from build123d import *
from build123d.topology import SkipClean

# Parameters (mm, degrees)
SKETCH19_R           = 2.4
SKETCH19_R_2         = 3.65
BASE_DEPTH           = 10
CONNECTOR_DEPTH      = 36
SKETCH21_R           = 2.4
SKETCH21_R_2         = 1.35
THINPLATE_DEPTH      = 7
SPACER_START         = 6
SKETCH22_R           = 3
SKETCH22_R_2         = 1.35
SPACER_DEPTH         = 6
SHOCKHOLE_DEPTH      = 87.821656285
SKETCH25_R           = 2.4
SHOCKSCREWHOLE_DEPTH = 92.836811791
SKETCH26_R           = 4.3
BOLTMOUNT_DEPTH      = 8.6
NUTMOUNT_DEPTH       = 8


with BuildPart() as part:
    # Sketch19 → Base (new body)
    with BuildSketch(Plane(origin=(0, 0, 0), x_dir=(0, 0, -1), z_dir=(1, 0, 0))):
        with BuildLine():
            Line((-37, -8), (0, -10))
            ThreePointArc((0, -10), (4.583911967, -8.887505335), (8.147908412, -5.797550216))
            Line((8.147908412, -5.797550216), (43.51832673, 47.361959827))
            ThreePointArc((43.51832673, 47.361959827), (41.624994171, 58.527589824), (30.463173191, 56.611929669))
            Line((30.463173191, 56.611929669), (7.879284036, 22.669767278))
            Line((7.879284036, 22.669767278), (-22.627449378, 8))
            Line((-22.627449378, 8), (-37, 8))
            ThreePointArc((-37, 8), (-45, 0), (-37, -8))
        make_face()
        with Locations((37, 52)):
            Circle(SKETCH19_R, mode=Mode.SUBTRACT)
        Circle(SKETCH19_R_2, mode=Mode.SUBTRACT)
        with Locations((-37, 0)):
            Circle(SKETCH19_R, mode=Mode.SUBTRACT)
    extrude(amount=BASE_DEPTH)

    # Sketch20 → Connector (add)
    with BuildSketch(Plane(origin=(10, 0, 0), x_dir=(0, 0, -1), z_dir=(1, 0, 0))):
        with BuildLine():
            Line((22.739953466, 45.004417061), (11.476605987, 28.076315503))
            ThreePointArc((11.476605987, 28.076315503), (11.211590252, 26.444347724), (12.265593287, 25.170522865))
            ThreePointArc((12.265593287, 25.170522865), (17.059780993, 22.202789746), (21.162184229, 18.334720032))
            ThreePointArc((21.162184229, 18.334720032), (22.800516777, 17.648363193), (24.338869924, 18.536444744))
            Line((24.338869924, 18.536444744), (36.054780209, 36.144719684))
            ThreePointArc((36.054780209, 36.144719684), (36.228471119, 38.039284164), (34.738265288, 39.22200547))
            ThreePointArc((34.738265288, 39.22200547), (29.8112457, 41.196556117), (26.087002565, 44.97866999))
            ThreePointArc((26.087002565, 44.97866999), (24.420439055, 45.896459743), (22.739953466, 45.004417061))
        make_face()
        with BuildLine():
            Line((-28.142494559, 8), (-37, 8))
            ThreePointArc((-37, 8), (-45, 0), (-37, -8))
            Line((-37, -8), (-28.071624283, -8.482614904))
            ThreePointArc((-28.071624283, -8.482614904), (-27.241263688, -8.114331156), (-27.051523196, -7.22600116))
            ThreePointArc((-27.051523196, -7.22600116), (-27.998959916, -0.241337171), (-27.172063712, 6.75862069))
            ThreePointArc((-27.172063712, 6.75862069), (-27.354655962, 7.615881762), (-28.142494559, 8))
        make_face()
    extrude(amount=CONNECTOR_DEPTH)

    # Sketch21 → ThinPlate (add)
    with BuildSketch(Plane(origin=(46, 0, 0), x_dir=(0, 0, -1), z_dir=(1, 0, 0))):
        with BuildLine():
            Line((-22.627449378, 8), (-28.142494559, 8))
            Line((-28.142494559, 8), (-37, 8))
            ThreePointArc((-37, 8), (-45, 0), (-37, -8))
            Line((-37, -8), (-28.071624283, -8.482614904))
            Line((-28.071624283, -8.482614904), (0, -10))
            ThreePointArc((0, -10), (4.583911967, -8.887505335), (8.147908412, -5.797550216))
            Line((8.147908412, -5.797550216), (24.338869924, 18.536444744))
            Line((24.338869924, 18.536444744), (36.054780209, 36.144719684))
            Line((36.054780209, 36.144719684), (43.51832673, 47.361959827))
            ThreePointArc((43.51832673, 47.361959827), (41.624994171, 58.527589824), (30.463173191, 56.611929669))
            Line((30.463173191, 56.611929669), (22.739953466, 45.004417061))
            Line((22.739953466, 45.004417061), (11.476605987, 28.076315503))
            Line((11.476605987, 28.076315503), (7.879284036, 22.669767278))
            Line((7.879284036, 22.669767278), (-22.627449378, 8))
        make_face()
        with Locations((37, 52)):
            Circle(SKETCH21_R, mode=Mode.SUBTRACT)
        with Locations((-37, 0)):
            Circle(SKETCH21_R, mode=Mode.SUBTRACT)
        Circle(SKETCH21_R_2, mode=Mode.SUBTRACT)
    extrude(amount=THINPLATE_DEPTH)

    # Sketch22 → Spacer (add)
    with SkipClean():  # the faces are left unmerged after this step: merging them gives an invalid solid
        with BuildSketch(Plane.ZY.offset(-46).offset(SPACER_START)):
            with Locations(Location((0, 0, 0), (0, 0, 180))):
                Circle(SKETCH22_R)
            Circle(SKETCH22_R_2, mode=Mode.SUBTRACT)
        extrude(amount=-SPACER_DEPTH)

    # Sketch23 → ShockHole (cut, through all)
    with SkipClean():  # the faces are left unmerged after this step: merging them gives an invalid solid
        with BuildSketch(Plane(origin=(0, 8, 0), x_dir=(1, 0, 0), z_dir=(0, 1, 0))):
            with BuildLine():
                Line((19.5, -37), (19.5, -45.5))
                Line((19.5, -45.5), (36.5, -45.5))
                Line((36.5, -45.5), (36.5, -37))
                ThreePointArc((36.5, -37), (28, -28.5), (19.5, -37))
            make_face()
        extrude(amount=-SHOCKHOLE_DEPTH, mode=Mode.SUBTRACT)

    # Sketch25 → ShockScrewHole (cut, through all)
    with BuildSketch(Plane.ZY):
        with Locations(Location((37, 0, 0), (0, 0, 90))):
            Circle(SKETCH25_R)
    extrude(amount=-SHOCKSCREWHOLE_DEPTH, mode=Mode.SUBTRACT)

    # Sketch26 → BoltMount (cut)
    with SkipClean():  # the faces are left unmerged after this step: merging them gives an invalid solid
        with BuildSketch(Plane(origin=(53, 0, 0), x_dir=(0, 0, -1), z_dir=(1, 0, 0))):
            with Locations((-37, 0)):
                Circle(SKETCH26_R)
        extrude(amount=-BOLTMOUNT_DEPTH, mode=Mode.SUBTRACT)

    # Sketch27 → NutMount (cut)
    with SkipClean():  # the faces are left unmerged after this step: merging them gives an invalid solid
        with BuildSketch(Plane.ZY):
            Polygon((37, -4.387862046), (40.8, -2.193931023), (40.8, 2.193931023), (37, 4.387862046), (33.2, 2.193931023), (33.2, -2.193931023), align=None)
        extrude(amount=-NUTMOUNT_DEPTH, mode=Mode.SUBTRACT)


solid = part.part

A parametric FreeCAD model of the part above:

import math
import FreeCAD as App
import Part
import Sketcher
from FreeCAD import Vector
Q = App.Units.Quantity

doc = App.newDocument("Part")
body = doc.addObject("PartDesign::Body", "Body")

# Sketch on YZ plane
sketch1 = doc.addObject("Sketcher::SketchObject", "Sketch")
body.addObject(sketch1)
sketch1.AttachmentSupport = (doc.YZ_Plane, [""])
sketch1.MapMode = "FlatFace"
sketch1.addGeometry([
    Part.LineSegment(Vector(-8, 37, 0), Vector(-10, 0, 0)),  # 0
    Part.ArcOfCircle(Part.Circle(Vector(0, 0, 0), Vector(0, 0, 1), 10), math.radians(180), math.radians(234.566686)),  # 1
    Part.LineSegment(Vector(-5.79755, -8.147908, 0), Vector(47.36196, -43.518327, 0)),  # 2
    Part.ArcOfCircle(Part.Circle(Vector(52, -37, 0), Vector(0, 0, 1), 8), math.radians(-125.433314), math.radians(54.795871)),  # 3
    Part.LineSegment(Vector(56.61193, -30.463173, 0), Vector(22.669767, -7.879284, 0)),  # 4
    Part.LineSegment(Vector(22.669767, -7.879284, 0), Vector(8, 22.627449, 0)),  # 5
    Part.LineSegment(Vector(8, 22.627449, 0), Vector(8, 37, 0)),  # 6
    Part.ArcOfCircle(Part.Circle(Vector(0, 37, 0), Vector(0, 0, 1), 8), math.radians(0), math.radians(180)),  # 7
    Part.Circle(Vector(0, 37, 0), Vector(0, 0, 1), 2.4),  # 8
    Part.Circle(Vector(0, 0, 0), Vector(0, 0, 1), 3.65),  # 9
    Part.Circle(Vector(52, -37, 0), Vector(0, 0, 1), 2.4),  # 10
], False)
sketch1.addConstraint([
    Sketcher.Constraint("Coincident", 0, 2, 1, 1),
    Sketcher.Constraint("Coincident", 1, 2, 2, 1),
    Sketcher.Constraint("Coincident", 2, 2, 3, 1),
    Sketcher.Constraint("Coincident", 3, 2, 4, 1),
    Sketcher.Constraint("Coincident", 4, 2, 5, 1),
    Sketcher.Constraint("Coincident", 5, 2, 6, 1),
    Sketcher.Constraint("Tangent", 6, 2, 7, 1),
    Sketcher.Constraint("Coincident", 7, 2, 0, 1),
    Sketcher.Constraint("Vertical", 6),
    Sketcher.Constraint("Coincident", 1, 3, -1, 1),
    Sketcher.Constraint("Coincident", 9, 3, -1, 1),
    Sketcher.Constraint("Coincident", 8, 3, 7, 3),
    Sketcher.Constraint("Coincident", 10, 3, 3, 3),
    Sketcher.Constraint("Equal", 3, 7),
    Sketcher.Constraint("Equal", 8, 10),
    Sketcher.Constraint("Symmetric", 6, 2, 7, 2, -2),
    Sketcher.Constraint("PointOnObject", 0, 2, -1),
    Sketcher.Constraint("Parallel", 2, 4),
    Sketcher.Constraint("Radius", 1, 10.0),
    Sketcher.Constraint("Radius", 3, 8.0),
    Sketcher.Constraint("Diameter", 8, 4.8),
    Sketcher.Constraint("Diameter", 9, 7.3),
    Sketcher.Constraint("DistanceX", -1, 1, 3, 3, 52.0),
    Sketcher.Constraint("DistanceY", 3, 3, -1, 1, 37.0),
    Sketcher.Constraint("DistanceY", -1, 1, 7, 3, 37.0),
    Sketcher.Constraint("DistanceY", 6, 1, 6, 2, 14.372551),
    Sketcher.Constraint("Distance", 2, 63.85139),
    Sketcher.Constraint("Distance", 4, 40.768891),
    Sketcher.Constraint("DistanceX", 1, 2, -1, 1, 5.79755),
    Sketcher.Constraint("DistanceX", -1, 1, 3, 2, 56.61193),
])
pad1 = doc.addObject("PartDesign::Pad", "Pad")
body.addObject(pad1)
pad1.Profile = sketch1
pad1.Length = 10

# Sketch on YZ plane
sketch2 = doc.addObject("Sketcher::SketchObject", "Sketch001")
body.addObject(sketch2)
sketch2.AttachmentSupport = (doc.YZ_Plane, [""])
sketch2.MapMode = "FlatFace"
sketch2.AttachmentOffset = App.Placement(Vector(0, 0, 10), App.Rotation())
sketch2.addGeometry([
    Part.LineSegment(Vector(45.004417, -22.739953, 0), Vector(28.076316, -11.476606, 0)),  # 0
    Part.ArcOfCircle(Part.Circle(Vector(26.968417, -13.141707, 0), Vector(0, 0, 1), 2), math.radians(56.36164), math.radians(154.02003)),  # 1
    Part.ArcOfCircle(Part.Circle(Vector(0, 0, 0), Vector(0, 0, 1), 28), math.radians(-49.094647), math.radians(-25.979969)),  # 2
    Part.ArcOfCircle(Part.Circle(Vector(19.644343, -22.673769, 0), Vector(0, 0, 1), 2), math.radians(130.905353), math.radians(236.36164)),  # 3
    Part.LineSegment(Vector(18.536445, -24.33887, 0), Vector(36.14472, -36.05478, 0)),  # 4
    Part.ArcOfCircle(Part.Circle(Vector(37.252618, -34.389679, 0), Vector(0, 0, 1), 2), math.radians(-123.63836), math.radians(-10.037523)),  # 5
    Part.ArcOfCircle(Part.Circle(Vector(52, -37, 0), Vector(0, 0, 1), 12.976617), math.radians(122.756885), math.radians(169.962477)),  # 6
    Part.ArcOfCircle(Part.Circle(Vector(43.896519, -24.405055, 0), Vector(0, 0, 1), 2), math.radians(-57.243115), math.radians(56.36164)),  # 7
    Part.LineSegment(Vector(8, 28.142495, 0), Vector(8, 37, 0)),  # 8
    Part.ArcOfCircle(Part.Circle(Vector(0, 37, 0), Vector(0, 0, 1), 8), math.radians(0), math.radians(180)),  # 9
    Part.LineSegment(Vector(-8, 37, 0), Vector(-8.482615, 28.071624, 0)),  # 10
    Part.ArcOfCircle(Part.Circle(Vector(-7.484073, 28.017649, 0), Vector(0, 0, 1), 1), math.radians(176.905942), math.radians(284.955661)),  # 11
    Part.ArcOfCircle(Part.Circle(Vector(0, 0, 0), Vector(0, 0, 1), 28), math.radians(76.032037), math.radians(104.955661)),  # 12
    Part.ArcOfCircle(Part.Circle(Vector(7, 28.142495, 0), Vector(0, 0, 1), 1), math.radians(-103.967963), math.radians(0)),  # 13
], False)
sketch2.addConstraint([
    Sketcher.Constraint("Tangent", 0, 2, 1, 1),
    Sketcher.Constraint("Tangent", 1, 2, 2, 2),
    Sketcher.Constraint("Tangent", 2, 1, 3, 1),
    Sketcher.Constraint("Tangent", 3, 2, 4, 1),
    Sketcher.Constraint("Tangent", 4, 2, 5, 1),
    Sketcher.Constraint("Tangent", 5, 2, 6, 2),
    Sketcher.Constraint("Tangent", 6, 1, 7, 1),
    Sketcher.Constraint("Tangent", 7, 2, 0, 1),
    Sketcher.Constraint("Tangent", 8, 2, 9, 1),
    Sketcher.Constraint("Coincident", 9, 2, 10, 1),
    Sketcher.Constraint("Tangent", 10, 2, 11, 1),
    Sketcher.Constraint("Tangent", 11, 2, 12, 2),
    Sketcher.Constraint("Tangent", 12, 1, 13, 1),
    Sketcher.Constraint("Tangent", 13, 2, 8, 1),
    Sketcher.Constraint("Vertical", 8),
    Sketcher.Constraint("Coincident", 2, 3, -1, 1),
    Sketcher.Constraint("Coincident", 12, 3, -1, 1),
    Sketcher.Constraint("Equal", 1, 3),
    Sketcher.Constraint("Equal", 3, 5),
    Sketcher.Constraint("Equal", 5, 7),
    Sketcher.Constraint("Equal", 2, 12),
    Sketcher.Constraint("Equal", 11, 13),
    Sketcher.Constraint("Symmetric", 8, 2, 9, 2, -2),
    Sketcher.Constraint("Parallel", 0, 4),
    Sketcher.Constraint("Radius", 1, 2.0),
    Sketcher.Constraint("Radius", 2, 28.0),
    Sketcher.Constraint("Radius", 9, 8.0),
    Sketcher.Constraint("Radius", 11, 1.0),
    Sketcher.Constraint("DistanceX", -1, 1, 6, 3, 52.0),
    Sketcher.Constraint("DistanceY", 6, 3, -1, 1, 37.0),
    Sketcher.Constraint("DistanceY", -1, 1, 9, 3, 37.0),
    Sketcher.Constraint("DistanceX", 11, 2, -1, 1, 7.226001),
    Sketcher.Constraint("Radius", 6, 12.976617),
    Sketcher.Constraint("DistanceX", 1, 3, 5, 3, 10.2842),
    Sketcher.Constraint("DistanceX", 5, 3, 7, 3, 6.643901),
    Sketcher.Constraint("DistanceY", 1, 3, 13, 3, 41.284202),
])
pad2 = doc.addObject("PartDesign::Pad", "Pad001")
body.addObject(pad2)
pad2.Profile = sketch2
pad2.Length = 36

# Sketch on YZ plane
sketch3 = doc.addObject("Sketcher::SketchObject", "Sketch002")
body.addObject(sketch3)
sketch3.AttachmentSupport = (doc.YZ_Plane, [""])
sketch3.MapMode = "FlatFace"
sketch3.AttachmentOffset = App.Placement(Vector(0, 0, 46), App.Rotation())
sketch3.addGeometry([
    Part.LineSegment(Vector(8, 22.627449, 0), Vector(8, 37, 0)),  # 0
    Part.ArcOfCircle(Part.Circle(Vector(0, 37, 0), Vector(0, 0, 1), 8), math.radians(0), math.radians(180)),  # 1
    Part.LineSegment(Vector(-8, 37, 0), Vector(-8.482615, 28.071624, 0)),  # 2
    Part.LineSegment(Vector(-8.482615, 28.071624, 0), Vector(-10, 0, 0)),  # 3
    Part.ArcOfCircle(Part.Circle(Vector(0, 0, 0), Vector(0, 0, 1), 10), math.radians(180), math.radians(234.566686)),  # 4
    Part.LineSegment(Vector(-5.79755, -8.147908, 0), Vector(18.536445, -24.33887, 0)),  # 5
    Part.LineSegment(Vector(18.536445, -24.33887, 0), Vector(36.14472, -36.05478, 0)),  # 6
    Part.LineSegment(Vector(36.14472, -36.05478, 0), Vector(47.36196, -43.518327, 0)),  # 7
    Part.ArcOfCircle(Part.Circle(Vector(52, -37, 0), Vector(0, 0, 1), 8), math.radians(-125.433314), math.radians(54.795871)),  # 8
    Part.LineSegment(Vector(56.61193, -30.463173, 0), Vector(45.004417, -22.739953, 0)),  # 9
    Part.LineSegment(Vector(45.004417, -22.739953, 0), Vector(28.076316, -11.476606, 0)),  # 10
    Part.LineSegment(Vector(28.076316, -11.476606, 0), Vector(22.669767, -7.879284, 0)),  # 11
    Part.LineSegment(Vector(22.669767, -7.879284, 0), Vector(8, 22.627449, 0)),  # 12
    Part.Circle(Vector(0, 37, 0), Vector(0, 0, 1), 2.4),  # 13
    Part.Circle(Vector(0, 0, 0), Vector(0, 0, 1), 1.35),  # 14
    Part.Circle(Vector(52, -37, 0), Vector(0, 0, 1), 2.4),  # 15
], False)
sketch3.addConstraint([
    Sketcher.Constraint("Coincident", 0, 2, 1, 1),
    Sketcher.Constraint("Coincident", 1, 2, 2, 1),
    Sketcher.Constraint("Coincident", 2, 2, 3, 1),
    Sketcher.Constraint("Coincident", 3, 2, 4, 1),
    Sketcher.Constraint("Coincident", 4, 2, 5, 1),
    Sketcher.Constraint("Coincident", 5, 2, 6, 1),
    Sketcher.Constraint("Coincident", 6, 2, 7, 1),
    Sketcher.Constraint("Coincident", 7, 2, 8, 1),
    Sketcher.Constraint("Coincident", 8, 2, 9, 1),
    Sketcher.Constraint("Coincident", 9, 2, 10, 1),
    Sketcher.Constraint("Coincident", 10, 2, 11, 1),
    Sketcher.Constraint("Coincident", 11, 2, 12, 1),
    Sketcher.Constraint("Coincident", 12, 2, 0, 1),
    Sketcher.Constraint("Vertical", 0),
    Sketcher.Constraint("Coincident", 4, 3, -1, 1),
    Sketcher.Constraint("Coincident", 14, 3, -1, 1),
    Sketcher.Constraint("Coincident", 13, 3, 1, 3),
    Sketcher.Constraint("Coincident", 15, 3, 8, 3),
    Sketcher.Constraint("PointOnObject", 1, 3, -2),
    Sketcher.Constraint("PointOnObject", 3, 2, -1),
    Sketcher.Constraint("Radius", 1, 8.0),
    Sketcher.Constraint("Radius", 4, 10.0),
    Sketcher.Constraint("Radius", 8, 8.0),
    Sketcher.Constraint("Diameter", 13, 4.8),
    Sketcher.Constraint("Diameter", 14, 2.7),
    Sketcher.Constraint("Diameter", 15, 4.8),
    Sketcher.Constraint("DistanceY", -1, 1, 1, 3, 37.0),
    Sketcher.Constraint("DistanceX", -1, 1, 8, 3, 52.0),
    Sketcher.Constraint("DistanceY", 8, 3, -1, 1, 37.0),
    Sketcher.Constraint("DistanceY", -1, 1, 0, 2, 37.0),
    Sketcher.Constraint("DistanceY", -1, 1, 1, 2, 37.0),
    Sketcher.Constraint("DistanceY", 0, 1, 0, 2, 14.372551),
    Sketcher.Constraint("DistanceX", 10, 2, 9, 2, 16.928102),
    Sketcher.Constraint("Distance", 2, 8.94141),
    Sketcher.Constraint("Distance", 5, 29.228249),
    Sketcher.Constraint("Distance", 9, 13.942111),
    Sketcher.Constraint("Distance", 10, 20.332821),
    Sketcher.Constraint("DistanceX", 4, 2, -1, 1, 5.79755),
    Sketcher.Constraint("DistanceY", 5, 2, -1, 1, 24.33887),
    Sketcher.Constraint("DistanceX", -1, 1, 6, 2, 36.14472),
    Sketcher.Constraint("DistanceY", 6, 2, -1, 1, 36.05478),
    Sketcher.Constraint("DistanceX", -1, 1, 7, 2, 47.36196),
    Sketcher.Constraint("DistanceX", -1, 1, 8, 2, 56.61193),
    Sketcher.Constraint("DistanceY", 8, 2, 9, 2, 7.72322),
    Sketcher.Constraint("DistanceX", 11, 2, 10, 2, 5.406548),
    Sketcher.Constraint("DistanceY", 10, 2, 11, 2, 3.597322),
    Sketcher.Constraint("DistanceX", 2, 2, -1, 1, 8.482615),
])
pad3 = doc.addObject("PartDesign::Pad", "Pad002")
body.addObject(pad3)
pad3.Profile = sketch3
pad3.Length = 7

# Sketch on YZ plane
sketch4 = doc.addObject("Sketcher::SketchObject", "Sketch003")
body.addObject(sketch4)
sketch4.AttachmentSupport = (doc.YZ_Plane, [""])
sketch4.MapMode = "FlatFace"
sketch4.AttachmentOffset = App.Placement(Vector(0, 0, 40), App.Rotation())
sketch4.addGeometry([
    Part.Circle(Vector(0, 0, 0), Vector(0, 0, 1), 3),
    Part.Circle(Vector(0, 0, 0), Vector(0, 0, 1), 1.35),
], False)
sketch4.addConstraint([
    Sketcher.Constraint("Coincident", 0, 3, -1, 1),
    Sketcher.Constraint("Coincident", 1, 3, -1, 1),
    Sketcher.Constraint("Diameter", 0, 6.0),
    Sketcher.Constraint("Diameter", 1, 2.7),
])
pad4 = doc.addObject("PartDesign::Pad", "Pad003")
body.addObject(pad4)
pad4.Profile = sketch4
pad4.Length = 6

# Sketch on XZ plane
sketch5 = doc.addObject("Sketcher::SketchObject", "Sketch004")
body.addObject(sketch5)
sketch5.AttachmentSupport = (doc.XZ_Plane, [""])
sketch5.MapMode = "FlatFace"
sketch5.AttachmentOffset = App.Placement(Vector(0, 0, -8), App.Rotation())
sketch5.addGeometry([
    Part.LineSegment(Vector(19.5, 37, 0), Vector(19.5, 45.5, 0)),
    Part.LineSegment(Vector(19.5, 45.5, 0), Vector(36.5, 45.5, 0)),
    Part.LineSegment(Vector(36.5, 45.5, 0), Vector(36.5, 37, 0)),
    Part.ArcOfCircle(Part.Circle(Vector(28, 37, 0), Vector(0, 0, 1), 8.5), math.radians(180), math.radians(360)),
], False)
sketch5.addConstraint([
    Sketcher.Constraint("Coincident", 0, 2, 1, 1),
    Sketcher.Constraint("Coincident", 1, 2, 2, 1),
    Sketcher.Constraint("Tangent", 2, 2, 3, 2),
    Sketcher.Constraint("Tangent", 3, 1, 0, 1),
    Sketcher.Constraint("Vertical", 0),
    Sketcher.Constraint("Horizontal", 1),
    Sketcher.Constraint("Vertical", 2),
    Sketcher.Constraint("Radius", 3, 8.5),
    Sketcher.Constraint("DistanceY", 0, 1, 0, 2, 8.5),
    Sketcher.Constraint("DistanceX", -1, 1, 3, 3, 28.0),
    Sketcher.Constraint("DistanceY", -1, 1, 3, 3, 37.0),
])
pocket1 = doc.addObject("PartDesign::Pocket", "Pocket")
body.addObject(pocket1)
pocket1.Profile = sketch5
pocket1.Type = "ThroughAll"
pocket1.Reversed = True

# Sketch on YZ plane
sketch6 = doc.addObject("Sketcher::SketchObject", "Sketch005")
body.addObject(sketch6)
sketch6.AttachmentSupport = (doc.YZ_Plane, [""])
sketch6.MapMode = "FlatFace"
sketch6.addGeometry(Part.Circle(Vector(0, 37, 0), Vector(0, 0, 1), 2.4), False)
sketch6.addConstraint([
    Sketcher.Constraint("PointOnObject", 0, 3, -2),
    Sketcher.Constraint("Diameter", 0, 4.8),
    Sketcher.Constraint("DistanceY", -1, 1, 0, 3, 37.0),
])
pocket2 = doc.addObject("PartDesign::Pocket", "Pocket001")
body.addObject(pocket2)
pocket2.Profile = sketch6
pocket2.Type = "ThroughAll"
pocket2.Reversed = True

# Sketch on YZ plane
sketch7 = doc.addObject("Sketcher::SketchObject", "Sketch006")
body.addObject(sketch7)
sketch7.AttachmentSupport = (doc.YZ_Plane, [""])
sketch7.MapMode = "FlatFace"
sketch7.AttachmentOffset = App.Placement(Vector(0, 0, 53), App.Rotation())
sketch7.addGeometry(Part.Circle(Vector(0, 37, 0), Vector(0, 0, 1), 4.3), False)
sketch7.addConstraint([
    Sketcher.Constraint("PointOnObject", 0, 3, -2),
    Sketcher.Constraint("Diameter", 0, 8.6),
    Sketcher.Constraint("DistanceY", -1, 1, 0, 3, 37.0),
])
pocket3 = doc.addObject("PartDesign::Pocket", "Pocket002")
body.addObject(pocket3)
pocket3.Profile = sketch7
pocket3.Length = 8.6

# Sketch on YZ plane
sketch8 = doc.addObject("Sketcher::SketchObject", "Sketch007")
body.addObject(sketch8)
sketch8.AttachmentSupport = (doc.YZ_Plane, [""])
sketch8.MapMode = "FlatFace"
sketch8.addGeometry([
    Part.LineSegment(Vector(-4.387862, 37, 0), Vector(-2.193931, 40.8, 0)),  # 0
    Part.LineSegment(Vector(-2.193931, 40.8, 0), Vector(2.193931, 40.8, 0)),  # 1
    Part.LineSegment(Vector(2.193931, 40.8, 0), Vector(4.387862, 37, 0)),  # 2
    Part.LineSegment(Vector(4.387862, 37, 0), Vector(2.193931, 33.2, 0)),  # 3
    Part.LineSegment(Vector(2.193931, 33.2, 0), Vector(-2.193931, 33.2, 0)),  # 4
    Part.LineSegment(Vector(-2.193931, 33.2, 0), Vector(-4.387862, 37, 0)),  # 5
], False)
sketch8.addConstraint([
    Sketcher.Constraint("Coincident", 0, 2, 1, 1),
    Sketcher.Constraint("Coincident", 1, 2, 2, 1),
    Sketcher.Constraint("Coincident", 2, 2, 3, 1),
    Sketcher.Constraint("Coincident", 3, 2, 4, 1),
    Sketcher.Constraint("Coincident", 4, 2, 5, 1),
    Sketcher.Constraint("Coincident", 5, 2, 0, 1),
    Sketcher.Constraint("Horizontal", 1),
    Sketcher.Constraint("Horizontal", 4),
    Sketcher.Constraint("Symmetric", 2, 2, 5, 2, -2),
    Sketcher.Constraint("Parallel", 0, 3),
    Sketcher.Constraint("Parallel", 2, 5),
    Sketcher.Constraint("Vertical", 1, 2, 3, 2),
    Sketcher.Constraint("Vertical", 0, 2, 4, 2),
    Sketcher.Constraint("Angle", 0, Q("60 deg")),
    Sketcher.Constraint("DistanceY", -1, 1, 2, 2, 37.0),
    Sketcher.Constraint("DistanceY", -1, 1, 0, 2, 40.8),
    Sketcher.Constraint("DistanceX", 1, 1, 1, 2, 4.387862),
])
pocket4 = doc.addObject("PartDesign::Pocket", "Pocket003")
body.addObject(pocket4)
pocket4.Profile = sketch8
pocket4.Length = 8
pocket4.Reversed = True

doc.recompute()
